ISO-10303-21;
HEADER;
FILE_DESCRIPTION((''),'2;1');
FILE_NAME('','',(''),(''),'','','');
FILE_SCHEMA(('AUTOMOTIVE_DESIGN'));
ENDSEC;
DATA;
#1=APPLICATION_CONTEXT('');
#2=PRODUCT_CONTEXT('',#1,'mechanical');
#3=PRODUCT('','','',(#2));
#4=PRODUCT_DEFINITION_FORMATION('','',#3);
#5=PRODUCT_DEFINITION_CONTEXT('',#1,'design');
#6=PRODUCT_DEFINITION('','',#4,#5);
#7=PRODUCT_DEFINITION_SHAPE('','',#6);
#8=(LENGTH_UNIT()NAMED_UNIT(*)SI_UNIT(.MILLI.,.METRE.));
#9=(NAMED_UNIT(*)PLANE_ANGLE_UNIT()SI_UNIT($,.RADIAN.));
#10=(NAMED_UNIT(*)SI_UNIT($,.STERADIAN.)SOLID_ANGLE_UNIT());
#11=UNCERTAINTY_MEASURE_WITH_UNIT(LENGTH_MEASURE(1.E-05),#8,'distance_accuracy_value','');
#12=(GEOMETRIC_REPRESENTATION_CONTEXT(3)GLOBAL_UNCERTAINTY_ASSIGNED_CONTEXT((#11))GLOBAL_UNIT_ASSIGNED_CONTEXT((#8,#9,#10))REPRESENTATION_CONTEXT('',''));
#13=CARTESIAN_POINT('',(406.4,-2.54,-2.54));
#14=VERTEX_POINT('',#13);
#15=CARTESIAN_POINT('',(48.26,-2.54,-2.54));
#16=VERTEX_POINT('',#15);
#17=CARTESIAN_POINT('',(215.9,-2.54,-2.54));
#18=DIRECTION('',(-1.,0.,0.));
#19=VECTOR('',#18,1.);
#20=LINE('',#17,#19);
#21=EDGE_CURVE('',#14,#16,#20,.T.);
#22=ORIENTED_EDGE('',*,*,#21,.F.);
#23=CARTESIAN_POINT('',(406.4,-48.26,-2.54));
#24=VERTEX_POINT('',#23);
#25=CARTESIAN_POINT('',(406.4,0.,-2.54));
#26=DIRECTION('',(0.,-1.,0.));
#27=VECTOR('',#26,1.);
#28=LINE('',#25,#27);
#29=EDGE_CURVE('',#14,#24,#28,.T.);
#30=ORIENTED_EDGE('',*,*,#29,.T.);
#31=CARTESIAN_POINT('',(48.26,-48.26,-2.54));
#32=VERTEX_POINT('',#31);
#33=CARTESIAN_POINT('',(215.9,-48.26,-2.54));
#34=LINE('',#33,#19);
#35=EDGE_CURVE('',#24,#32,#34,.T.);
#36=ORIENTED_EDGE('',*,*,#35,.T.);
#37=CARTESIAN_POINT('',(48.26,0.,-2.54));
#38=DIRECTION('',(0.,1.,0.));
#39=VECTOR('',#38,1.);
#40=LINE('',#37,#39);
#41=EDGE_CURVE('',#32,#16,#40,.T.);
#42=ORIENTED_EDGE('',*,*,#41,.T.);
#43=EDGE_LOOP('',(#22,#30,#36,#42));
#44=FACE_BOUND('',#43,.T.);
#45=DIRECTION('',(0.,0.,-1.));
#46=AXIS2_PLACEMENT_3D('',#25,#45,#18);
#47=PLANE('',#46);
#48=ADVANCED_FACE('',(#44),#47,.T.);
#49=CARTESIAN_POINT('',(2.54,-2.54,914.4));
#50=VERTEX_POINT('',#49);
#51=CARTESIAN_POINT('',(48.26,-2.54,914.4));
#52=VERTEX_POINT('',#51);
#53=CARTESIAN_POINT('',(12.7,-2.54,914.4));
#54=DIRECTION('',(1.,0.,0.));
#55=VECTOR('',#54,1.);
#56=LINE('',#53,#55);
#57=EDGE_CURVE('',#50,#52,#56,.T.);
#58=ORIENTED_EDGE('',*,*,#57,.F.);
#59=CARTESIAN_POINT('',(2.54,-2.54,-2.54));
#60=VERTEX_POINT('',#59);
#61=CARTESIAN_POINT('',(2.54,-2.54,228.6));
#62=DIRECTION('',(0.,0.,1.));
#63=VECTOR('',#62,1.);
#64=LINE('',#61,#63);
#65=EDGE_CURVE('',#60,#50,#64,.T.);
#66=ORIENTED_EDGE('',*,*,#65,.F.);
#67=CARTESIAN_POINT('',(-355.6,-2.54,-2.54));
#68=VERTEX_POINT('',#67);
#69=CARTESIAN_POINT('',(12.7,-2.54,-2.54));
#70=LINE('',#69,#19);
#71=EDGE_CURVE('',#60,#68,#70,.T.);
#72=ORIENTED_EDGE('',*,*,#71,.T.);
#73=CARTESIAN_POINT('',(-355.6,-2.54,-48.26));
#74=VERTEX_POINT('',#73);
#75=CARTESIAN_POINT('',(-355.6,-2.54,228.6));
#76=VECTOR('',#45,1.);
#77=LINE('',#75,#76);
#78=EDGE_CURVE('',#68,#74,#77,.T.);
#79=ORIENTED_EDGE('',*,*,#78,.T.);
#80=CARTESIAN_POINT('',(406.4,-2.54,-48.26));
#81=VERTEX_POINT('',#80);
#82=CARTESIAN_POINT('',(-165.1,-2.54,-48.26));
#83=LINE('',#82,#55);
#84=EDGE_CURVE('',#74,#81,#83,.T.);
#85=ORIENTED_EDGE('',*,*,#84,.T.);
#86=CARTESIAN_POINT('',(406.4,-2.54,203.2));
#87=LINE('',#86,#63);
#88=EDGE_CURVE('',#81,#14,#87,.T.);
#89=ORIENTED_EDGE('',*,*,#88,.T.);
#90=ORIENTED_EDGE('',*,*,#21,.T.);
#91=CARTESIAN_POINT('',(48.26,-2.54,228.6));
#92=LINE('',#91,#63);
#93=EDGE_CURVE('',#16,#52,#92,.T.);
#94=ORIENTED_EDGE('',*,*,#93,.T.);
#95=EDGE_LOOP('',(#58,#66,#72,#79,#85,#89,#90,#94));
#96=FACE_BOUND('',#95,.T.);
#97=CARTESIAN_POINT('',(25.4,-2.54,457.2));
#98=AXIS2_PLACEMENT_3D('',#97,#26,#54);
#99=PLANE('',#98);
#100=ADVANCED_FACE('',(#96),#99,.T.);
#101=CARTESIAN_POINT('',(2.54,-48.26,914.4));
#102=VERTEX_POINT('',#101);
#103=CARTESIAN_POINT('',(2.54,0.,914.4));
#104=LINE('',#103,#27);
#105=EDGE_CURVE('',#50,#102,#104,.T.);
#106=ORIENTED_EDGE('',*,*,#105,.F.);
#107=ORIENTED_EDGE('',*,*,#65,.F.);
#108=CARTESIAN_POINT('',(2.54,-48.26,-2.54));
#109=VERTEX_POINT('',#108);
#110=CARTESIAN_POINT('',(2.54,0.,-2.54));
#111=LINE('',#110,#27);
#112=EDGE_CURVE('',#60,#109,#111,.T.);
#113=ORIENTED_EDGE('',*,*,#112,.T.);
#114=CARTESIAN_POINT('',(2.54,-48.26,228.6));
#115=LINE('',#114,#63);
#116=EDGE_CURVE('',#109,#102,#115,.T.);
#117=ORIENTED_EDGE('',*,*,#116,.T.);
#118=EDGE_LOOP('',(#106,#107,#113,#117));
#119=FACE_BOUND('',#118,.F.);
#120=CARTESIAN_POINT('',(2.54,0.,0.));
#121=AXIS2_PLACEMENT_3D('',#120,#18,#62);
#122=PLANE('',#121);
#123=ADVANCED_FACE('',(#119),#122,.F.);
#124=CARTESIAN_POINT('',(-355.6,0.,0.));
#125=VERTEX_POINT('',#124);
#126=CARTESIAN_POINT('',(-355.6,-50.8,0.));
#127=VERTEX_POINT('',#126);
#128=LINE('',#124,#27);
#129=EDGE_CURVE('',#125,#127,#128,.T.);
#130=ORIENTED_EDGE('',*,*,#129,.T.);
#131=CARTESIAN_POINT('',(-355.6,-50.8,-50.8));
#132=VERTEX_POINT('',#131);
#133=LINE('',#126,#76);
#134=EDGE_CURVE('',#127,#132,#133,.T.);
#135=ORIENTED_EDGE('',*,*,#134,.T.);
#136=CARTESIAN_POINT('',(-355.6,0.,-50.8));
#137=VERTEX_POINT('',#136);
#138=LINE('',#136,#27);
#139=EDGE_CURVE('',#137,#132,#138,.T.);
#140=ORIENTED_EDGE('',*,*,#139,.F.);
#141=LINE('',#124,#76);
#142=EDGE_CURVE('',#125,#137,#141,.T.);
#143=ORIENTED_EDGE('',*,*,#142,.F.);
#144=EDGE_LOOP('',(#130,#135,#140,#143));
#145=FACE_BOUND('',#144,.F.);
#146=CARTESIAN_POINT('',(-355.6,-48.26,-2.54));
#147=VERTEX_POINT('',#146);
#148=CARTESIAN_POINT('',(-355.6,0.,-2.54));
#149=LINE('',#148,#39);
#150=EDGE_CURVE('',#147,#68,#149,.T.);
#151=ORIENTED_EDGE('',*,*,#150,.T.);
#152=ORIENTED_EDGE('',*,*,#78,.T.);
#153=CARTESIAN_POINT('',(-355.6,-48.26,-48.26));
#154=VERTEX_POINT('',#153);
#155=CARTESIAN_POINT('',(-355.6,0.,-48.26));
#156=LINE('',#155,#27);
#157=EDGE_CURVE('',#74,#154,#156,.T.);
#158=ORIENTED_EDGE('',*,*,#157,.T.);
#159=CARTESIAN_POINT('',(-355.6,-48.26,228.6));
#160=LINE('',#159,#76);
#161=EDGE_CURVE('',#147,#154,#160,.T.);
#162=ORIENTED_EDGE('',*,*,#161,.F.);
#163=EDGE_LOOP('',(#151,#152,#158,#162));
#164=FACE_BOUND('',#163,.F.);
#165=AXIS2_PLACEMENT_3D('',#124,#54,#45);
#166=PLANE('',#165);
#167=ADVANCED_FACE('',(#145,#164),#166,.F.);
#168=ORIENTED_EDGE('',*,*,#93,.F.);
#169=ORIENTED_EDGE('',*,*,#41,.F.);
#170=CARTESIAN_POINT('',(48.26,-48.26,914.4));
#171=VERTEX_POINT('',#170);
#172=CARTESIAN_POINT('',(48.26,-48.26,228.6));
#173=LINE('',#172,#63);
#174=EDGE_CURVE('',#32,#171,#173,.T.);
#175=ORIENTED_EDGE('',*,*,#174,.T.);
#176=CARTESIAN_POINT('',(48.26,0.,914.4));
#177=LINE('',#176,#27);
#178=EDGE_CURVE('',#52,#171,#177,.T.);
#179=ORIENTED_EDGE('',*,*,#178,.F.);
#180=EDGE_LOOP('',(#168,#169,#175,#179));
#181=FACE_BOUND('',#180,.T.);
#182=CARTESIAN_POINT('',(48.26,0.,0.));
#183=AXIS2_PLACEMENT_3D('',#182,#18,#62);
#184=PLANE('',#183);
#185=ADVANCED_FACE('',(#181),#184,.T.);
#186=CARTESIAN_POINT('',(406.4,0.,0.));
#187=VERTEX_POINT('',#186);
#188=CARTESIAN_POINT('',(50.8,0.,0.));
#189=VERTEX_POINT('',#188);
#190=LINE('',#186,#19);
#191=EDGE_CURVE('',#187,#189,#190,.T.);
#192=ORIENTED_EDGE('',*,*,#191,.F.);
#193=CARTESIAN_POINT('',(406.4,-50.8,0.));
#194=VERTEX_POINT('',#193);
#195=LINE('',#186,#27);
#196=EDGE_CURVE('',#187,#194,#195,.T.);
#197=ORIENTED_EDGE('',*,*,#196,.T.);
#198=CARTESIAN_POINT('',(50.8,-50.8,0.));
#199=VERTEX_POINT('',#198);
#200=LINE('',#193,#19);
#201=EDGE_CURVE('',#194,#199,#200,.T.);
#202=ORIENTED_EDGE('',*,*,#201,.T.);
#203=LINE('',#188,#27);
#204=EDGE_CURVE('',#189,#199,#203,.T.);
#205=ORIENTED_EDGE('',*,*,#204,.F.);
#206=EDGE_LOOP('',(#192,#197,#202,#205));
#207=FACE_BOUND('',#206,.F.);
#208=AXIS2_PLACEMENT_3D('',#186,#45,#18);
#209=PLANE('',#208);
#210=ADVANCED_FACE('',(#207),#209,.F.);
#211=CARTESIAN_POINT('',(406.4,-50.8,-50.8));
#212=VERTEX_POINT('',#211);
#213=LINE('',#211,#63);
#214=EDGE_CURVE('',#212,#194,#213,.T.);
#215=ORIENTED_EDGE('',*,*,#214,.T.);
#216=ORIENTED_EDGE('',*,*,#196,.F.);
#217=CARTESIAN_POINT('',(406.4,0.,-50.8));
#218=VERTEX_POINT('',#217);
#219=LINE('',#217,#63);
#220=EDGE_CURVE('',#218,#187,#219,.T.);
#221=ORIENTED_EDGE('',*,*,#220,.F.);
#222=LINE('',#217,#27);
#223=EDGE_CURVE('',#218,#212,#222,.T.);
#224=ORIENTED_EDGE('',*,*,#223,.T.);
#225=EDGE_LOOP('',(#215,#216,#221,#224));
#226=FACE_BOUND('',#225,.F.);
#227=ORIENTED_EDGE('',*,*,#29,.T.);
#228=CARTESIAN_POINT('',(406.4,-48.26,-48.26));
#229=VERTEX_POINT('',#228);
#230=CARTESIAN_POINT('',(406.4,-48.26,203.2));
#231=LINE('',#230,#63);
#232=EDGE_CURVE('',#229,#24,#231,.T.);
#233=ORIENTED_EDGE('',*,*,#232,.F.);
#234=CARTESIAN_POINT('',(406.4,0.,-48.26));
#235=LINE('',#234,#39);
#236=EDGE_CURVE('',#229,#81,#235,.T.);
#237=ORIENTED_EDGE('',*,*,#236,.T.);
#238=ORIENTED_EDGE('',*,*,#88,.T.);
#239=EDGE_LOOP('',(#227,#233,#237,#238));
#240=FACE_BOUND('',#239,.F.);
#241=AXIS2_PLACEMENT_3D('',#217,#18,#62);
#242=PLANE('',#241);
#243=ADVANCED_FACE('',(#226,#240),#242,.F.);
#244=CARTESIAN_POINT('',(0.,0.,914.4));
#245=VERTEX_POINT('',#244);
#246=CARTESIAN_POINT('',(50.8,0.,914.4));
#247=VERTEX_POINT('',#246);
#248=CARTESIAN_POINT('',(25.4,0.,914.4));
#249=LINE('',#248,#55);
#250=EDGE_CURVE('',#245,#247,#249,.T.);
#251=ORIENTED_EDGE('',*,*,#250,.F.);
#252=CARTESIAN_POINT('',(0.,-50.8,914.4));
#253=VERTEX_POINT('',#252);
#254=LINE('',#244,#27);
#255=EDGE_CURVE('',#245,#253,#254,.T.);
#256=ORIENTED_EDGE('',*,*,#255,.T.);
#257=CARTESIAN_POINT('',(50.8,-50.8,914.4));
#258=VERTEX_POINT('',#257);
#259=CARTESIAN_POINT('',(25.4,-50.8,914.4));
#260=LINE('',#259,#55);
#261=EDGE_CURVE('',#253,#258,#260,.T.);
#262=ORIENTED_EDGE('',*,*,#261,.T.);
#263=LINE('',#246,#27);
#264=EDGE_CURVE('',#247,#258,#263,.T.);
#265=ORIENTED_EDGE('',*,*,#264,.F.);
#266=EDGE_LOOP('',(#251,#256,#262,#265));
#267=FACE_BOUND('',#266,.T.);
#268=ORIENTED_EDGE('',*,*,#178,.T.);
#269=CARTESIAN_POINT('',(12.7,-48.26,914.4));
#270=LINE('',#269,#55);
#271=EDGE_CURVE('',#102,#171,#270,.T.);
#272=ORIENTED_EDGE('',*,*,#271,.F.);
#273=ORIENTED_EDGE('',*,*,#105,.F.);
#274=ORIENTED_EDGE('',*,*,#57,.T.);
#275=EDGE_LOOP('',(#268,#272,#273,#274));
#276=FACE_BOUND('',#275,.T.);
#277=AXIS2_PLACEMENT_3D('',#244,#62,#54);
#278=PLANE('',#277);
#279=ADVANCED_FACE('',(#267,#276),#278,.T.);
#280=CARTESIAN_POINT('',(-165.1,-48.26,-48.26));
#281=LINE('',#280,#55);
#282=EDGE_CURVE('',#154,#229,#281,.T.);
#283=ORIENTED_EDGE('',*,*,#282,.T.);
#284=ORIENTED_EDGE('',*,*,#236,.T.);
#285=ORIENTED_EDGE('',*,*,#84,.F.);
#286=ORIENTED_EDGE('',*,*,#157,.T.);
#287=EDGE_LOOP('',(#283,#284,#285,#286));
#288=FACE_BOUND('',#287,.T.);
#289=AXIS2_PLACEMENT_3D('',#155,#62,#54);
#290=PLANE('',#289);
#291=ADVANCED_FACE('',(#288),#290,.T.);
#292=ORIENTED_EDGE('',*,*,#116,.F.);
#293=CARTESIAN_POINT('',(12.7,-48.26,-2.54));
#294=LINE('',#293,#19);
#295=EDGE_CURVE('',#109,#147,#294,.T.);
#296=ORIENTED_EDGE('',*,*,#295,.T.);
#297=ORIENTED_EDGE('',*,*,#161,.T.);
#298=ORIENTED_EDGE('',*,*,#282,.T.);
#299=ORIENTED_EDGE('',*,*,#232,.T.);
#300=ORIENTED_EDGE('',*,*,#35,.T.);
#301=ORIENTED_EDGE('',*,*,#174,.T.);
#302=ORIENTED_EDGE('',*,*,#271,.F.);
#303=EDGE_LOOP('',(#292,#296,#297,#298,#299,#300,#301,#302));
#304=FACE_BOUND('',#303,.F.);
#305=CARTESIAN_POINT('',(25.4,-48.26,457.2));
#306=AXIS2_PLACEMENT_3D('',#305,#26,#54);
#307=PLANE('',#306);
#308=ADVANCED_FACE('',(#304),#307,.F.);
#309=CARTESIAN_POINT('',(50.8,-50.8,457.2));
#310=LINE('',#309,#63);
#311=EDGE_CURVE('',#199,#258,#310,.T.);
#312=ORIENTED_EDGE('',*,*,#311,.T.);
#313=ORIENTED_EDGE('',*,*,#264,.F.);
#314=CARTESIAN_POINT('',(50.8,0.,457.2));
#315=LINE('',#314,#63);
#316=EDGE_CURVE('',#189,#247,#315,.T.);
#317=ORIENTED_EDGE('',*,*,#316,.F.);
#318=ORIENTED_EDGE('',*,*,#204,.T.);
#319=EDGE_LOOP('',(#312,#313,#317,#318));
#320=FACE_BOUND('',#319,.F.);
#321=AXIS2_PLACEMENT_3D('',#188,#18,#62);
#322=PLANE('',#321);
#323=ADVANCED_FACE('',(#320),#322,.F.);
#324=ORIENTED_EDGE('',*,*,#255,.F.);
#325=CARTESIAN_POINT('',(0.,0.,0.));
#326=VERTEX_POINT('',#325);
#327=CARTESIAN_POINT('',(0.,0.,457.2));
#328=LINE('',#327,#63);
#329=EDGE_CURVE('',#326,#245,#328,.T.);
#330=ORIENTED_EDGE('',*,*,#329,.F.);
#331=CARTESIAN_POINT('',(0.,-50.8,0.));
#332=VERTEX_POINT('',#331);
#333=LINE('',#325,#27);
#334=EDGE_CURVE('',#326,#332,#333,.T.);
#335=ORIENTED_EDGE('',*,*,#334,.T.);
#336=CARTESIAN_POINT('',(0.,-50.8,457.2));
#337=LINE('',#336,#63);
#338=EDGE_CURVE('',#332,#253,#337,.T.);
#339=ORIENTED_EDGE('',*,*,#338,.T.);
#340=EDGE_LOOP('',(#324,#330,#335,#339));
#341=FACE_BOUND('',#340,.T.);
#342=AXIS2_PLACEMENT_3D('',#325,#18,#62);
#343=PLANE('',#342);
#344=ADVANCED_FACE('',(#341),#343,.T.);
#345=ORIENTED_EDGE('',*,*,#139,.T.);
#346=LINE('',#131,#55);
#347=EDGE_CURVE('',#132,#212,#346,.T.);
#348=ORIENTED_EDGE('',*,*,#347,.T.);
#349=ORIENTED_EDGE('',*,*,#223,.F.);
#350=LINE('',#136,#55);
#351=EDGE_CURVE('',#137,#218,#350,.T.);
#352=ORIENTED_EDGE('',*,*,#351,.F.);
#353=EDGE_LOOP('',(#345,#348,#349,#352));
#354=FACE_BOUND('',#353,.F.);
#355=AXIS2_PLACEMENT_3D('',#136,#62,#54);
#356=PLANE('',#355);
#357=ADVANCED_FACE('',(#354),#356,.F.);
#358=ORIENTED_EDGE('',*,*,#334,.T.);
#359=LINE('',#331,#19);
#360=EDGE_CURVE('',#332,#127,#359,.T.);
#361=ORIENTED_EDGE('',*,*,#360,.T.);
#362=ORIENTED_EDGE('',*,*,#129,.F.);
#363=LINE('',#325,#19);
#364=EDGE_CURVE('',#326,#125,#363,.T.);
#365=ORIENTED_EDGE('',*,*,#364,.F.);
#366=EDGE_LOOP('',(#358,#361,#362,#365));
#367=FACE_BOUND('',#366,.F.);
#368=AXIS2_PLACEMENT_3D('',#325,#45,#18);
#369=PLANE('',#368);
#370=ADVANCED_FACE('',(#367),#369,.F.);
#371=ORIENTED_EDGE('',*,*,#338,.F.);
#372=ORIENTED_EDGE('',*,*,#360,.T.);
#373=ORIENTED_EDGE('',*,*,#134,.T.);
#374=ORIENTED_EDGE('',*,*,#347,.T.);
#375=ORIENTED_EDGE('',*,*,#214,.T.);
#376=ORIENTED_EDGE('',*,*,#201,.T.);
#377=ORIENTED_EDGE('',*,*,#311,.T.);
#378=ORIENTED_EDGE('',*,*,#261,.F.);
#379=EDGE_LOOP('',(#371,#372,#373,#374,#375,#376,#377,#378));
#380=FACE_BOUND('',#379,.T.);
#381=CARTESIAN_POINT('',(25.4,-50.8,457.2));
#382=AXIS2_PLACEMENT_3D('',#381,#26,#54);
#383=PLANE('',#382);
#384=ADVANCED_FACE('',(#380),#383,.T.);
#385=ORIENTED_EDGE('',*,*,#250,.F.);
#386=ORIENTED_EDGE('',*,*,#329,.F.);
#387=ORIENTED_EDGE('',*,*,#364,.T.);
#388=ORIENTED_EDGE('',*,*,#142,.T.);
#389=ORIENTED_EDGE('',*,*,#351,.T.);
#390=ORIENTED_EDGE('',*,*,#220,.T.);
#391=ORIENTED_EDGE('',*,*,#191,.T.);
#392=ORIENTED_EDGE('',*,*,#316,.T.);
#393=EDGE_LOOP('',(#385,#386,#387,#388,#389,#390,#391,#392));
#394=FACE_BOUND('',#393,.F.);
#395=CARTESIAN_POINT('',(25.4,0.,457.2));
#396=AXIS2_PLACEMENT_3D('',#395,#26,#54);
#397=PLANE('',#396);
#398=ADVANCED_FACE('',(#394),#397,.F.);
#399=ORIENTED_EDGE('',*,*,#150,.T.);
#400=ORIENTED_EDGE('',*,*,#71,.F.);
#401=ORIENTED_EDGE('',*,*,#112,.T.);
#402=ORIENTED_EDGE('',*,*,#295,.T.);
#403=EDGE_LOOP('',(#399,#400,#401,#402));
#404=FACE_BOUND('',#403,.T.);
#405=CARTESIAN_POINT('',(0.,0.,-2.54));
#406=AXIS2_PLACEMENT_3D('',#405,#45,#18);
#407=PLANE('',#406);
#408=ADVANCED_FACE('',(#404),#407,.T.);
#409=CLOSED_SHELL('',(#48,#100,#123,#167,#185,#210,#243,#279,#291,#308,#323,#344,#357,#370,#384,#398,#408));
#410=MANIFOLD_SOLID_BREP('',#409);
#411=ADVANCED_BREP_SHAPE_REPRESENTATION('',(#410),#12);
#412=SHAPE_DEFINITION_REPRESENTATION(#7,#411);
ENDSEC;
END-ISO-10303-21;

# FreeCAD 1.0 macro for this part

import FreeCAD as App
import Part
import Sketcher

V = App.Vector
Q = App.Units.Quantity


def faces_at(feature, points):
    """Names of the faces that lie closest to the given points."""
    faces = feature.Shape.Faces
    near = lambda p: min(range(len(faces)), key=lambda i: faces[i].distToShape(Part.Vertex(*p))[0])
    return sorted({f"Face{near(p) + 1}" for p in points})


def add_polygon(sketch, points):
    """Adds a closed chain of lines whose ends are joined by coincident constraints."""
    first, n = sketch.GeometryCount, len(points)
    for a, b in zip(points, points[1:] + points[:1]):
        sketch.addGeometry(Part.LineSegment(App.Vector(*a, 0), App.Vector(*b, 0)), False)
    for i in range(n):
        sketch.addConstraint(Sketcher.Constraint("Coincident", first + i, 2, first + (i + 1) % n, 1))

doc = App.newDocument("Part")
params = doc.addObject("Spreadsheet::Sheet", "Params")
for row, (alias, value) in enumerate([
    ("sketch1_width", "14 in"),
    ("sketch1_width2", "30 in"),
    ("sketch1_height", "36 in"),
    ("pad1_length", "2 in"),
    ("thickness_wall", "0.1 in"),
], start=1):
    params.set(f"A{row}", alias)
    params.set(f"B{row}", "=" + value)
    params.setAlias(f"B{row}", alias)

body = doc.addObject("PartDesign::Body", "Body")

sketch1 = body.newObject("Sketcher::SketchObject", "Sketch")
sketch1.AttachmentSupport = (doc.getObject("XZ_Plane"), [""])
sketch1.MapMode = "FlatFace"
add_polygon(sketch1, [(0, 914), (0, 0), (-356, 0), (-356, -51), (406, -51), (406, 0), (51, 0), (51, 914)])
sketch1.addConstraint(Sketcher.Constraint("Vertical", 0))
sketch1.addConstraint(Sketcher.Constraint("Horizontal", 1))
sketch1.addConstraint(Sketcher.Constraint("Vertical", 2))
sketch1.addConstraint(Sketcher.Constraint("Horizontal", 3))
sketch1.addConstraint(Sketcher.Constraint("Vertical", 4))
sketch1.addConstraint(Sketcher.Constraint("Horizontal", 5))
sketch1.addConstraint(Sketcher.Constraint("Vertical", 6))
sketch1.addConstraint(Sketcher.Constraint("Horizontal", 7))
sketch1.addConstraint(Sketcher.Constraint("Coincident", 0, 2, -1, 1))
sketch1.addConstraint(Sketcher.Constraint("PointOnObject", 4, 2, -1))
sketch1.addConstraint(Sketcher.Constraint("Equal", 1, 5))
sketch1.addConstraint(Sketcher.Constraint("Equal", 7, 2))
sketch1.addConstraint(Sketcher.Constraint("DistanceX", 1, 2, 1, 1, Q("14 in")))
sketch1.addConstraint(Sketcher.Constraint("DistanceX", 3, 1, 3, 2, Q("30 in")))
sketch1.addConstraint(Sketcher.Constraint("DistanceY", 0, 2, 0, 1, Q("36 in")))
sketch1.setExpression("Constraints[20]", "Params.sketch1_width")
sketch1.setExpression("Constraints[21]", "Params.sketch1_width2")
sketch1.setExpression("Constraints[22]", "Params.sketch1_height")
pad1 = body.newObject("PartDesign::Pad", "Pad")
pad1.Profile = sketch1
pad1.setExpression("Length", "Params.pad1_length")
doc.recompute()

thickness = body.newObject("PartDesign::Thickness", "Thickness")
thickness.Base = (pad1, faces_at(pad1, [(25.4, -25.4, 914.4), (406.4, -25.4, -25.4), (-355.6, -25.4, -25.4)]))
thickness.setExpression("Value", "Params.thickness_wall")
thickness.Reversed = True
thickness.Join = "Intersection"

doc.recompute()
